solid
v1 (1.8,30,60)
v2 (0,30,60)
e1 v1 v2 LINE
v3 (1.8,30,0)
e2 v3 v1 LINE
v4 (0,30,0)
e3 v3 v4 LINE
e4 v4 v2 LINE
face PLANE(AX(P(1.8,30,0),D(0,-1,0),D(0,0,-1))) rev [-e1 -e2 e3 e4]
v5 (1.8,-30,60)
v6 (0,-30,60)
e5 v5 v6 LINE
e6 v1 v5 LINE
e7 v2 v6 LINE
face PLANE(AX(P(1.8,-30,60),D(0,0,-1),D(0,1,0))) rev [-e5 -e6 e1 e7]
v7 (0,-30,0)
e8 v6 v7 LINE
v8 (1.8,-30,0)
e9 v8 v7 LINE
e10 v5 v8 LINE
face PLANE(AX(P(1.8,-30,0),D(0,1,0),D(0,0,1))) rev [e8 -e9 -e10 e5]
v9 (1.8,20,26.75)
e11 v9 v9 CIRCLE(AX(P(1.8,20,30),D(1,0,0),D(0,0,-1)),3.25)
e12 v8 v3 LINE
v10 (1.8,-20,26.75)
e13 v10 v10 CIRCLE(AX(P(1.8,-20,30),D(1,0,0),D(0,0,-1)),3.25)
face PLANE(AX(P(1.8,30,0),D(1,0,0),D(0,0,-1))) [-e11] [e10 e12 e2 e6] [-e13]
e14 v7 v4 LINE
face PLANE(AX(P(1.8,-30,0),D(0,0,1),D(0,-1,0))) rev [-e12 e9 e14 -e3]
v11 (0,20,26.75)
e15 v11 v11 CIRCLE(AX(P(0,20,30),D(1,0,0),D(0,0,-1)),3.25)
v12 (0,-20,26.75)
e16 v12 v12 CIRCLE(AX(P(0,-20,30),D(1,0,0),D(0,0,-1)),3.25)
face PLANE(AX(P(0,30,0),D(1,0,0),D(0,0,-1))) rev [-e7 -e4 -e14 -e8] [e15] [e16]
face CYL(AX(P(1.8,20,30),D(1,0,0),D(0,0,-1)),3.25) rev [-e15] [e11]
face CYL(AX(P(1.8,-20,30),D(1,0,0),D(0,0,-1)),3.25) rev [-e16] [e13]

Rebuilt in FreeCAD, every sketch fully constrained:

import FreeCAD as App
import Part
import Sketcher

V = App.Vector

doc = App.newDocument("Part")
body = doc.addObject("PartDesign::Body", "Body")

sketch1 = doc.addObject("Sketcher::SketchObject", "Sketch")
body.addObject(sketch1)
sketch1.AttachmentSupport = (doc.YZ_Plane, [""])
sketch1.MapMode = "FlatFace"
sketch1.addGeometry([
    Part.LineSegment(V(30, 60, 0), V(-30, 60, 0)),
    Part.LineSegment(V(-30, 60, 0), V(-30, 0, 0)),
    Part.LineSegment(V(-30, 0, 0), V(30, 0, 0)),
    Part.LineSegment(V(30, 0, 0), V(30, 60, 0)),
], False)
sketch1.addConstraint([
    Sketcher.Constraint("Coincident", 0, 2, 1, 1),
    Sketcher.Constraint("Coincident", 1, 2, 2, 1),
    Sketcher.Constraint("Coincident", 2, 2, 3, 1),
    Sketcher.Constraint("Coincident", 3, 2, 0, 1),
    Sketcher.Constraint("Horizontal", 0),
    Sketcher.Constraint("Vertical", 1),
    Sketcher.Constraint("Horizontal", 2),
    Sketcher.Constraint("Vertical", 3),
    Sketcher.Constraint("Symmetric", 1, 2, 2, 2, -1, 1),
    Sketcher.Constraint("Equal", 2, 1),
    Sketcher.Constraint("DistanceX", 0, 2, 0, 1, 60.0),
])
pad1 = doc.addObject("PartDesign::Pad", "Pad")
body.addObject(pad1)
pad1.Profile = sketch1
pad1.Length = 1.8

sketch2 = doc.addObject("Sketcher::SketchObject", "Sketch001")
body.addObject(sketch2)
sketch2.AttachmentSupport = (doc.YZ_Plane, [""])
sketch2.MapMode = "FlatFace"
sketch2.AttachmentOffset = App.Placement(V(0, 0, 1.8), App.Rotation())
sketch2.addGeometry([
    Part.Circle(V(-20, 30, 0), V(0, 0, 1), 3.2),
    Part.Circle(V(20, 30, 0), V(0, 0, 1), 3.2),
], False)
sketch2.addConstraint([
    Sketcher.Constraint("Equal", 0, 1),
    Sketcher.Constraint("Symmetric", 0, 3, 1, 3, -2),
    Sketcher.Constraint("Diameter", 0, 6.5),
    Sketcher.Constraint("DistanceX", 0, 3, -1, 1, 20.0),
    Sketcher.Constraint("DistanceY", -1, 1, 0, 3, 30.0),
])
doc.recompute()
hole = doc.addObject("PartDesign::Hole", "Hole")
body.addObject(hole)
hole.Profile = sketch2
hole.ThreadType = "None"
hole.Diameter = 6.5
hole.DepthType = "ThroughAll"

doc.recompute()
